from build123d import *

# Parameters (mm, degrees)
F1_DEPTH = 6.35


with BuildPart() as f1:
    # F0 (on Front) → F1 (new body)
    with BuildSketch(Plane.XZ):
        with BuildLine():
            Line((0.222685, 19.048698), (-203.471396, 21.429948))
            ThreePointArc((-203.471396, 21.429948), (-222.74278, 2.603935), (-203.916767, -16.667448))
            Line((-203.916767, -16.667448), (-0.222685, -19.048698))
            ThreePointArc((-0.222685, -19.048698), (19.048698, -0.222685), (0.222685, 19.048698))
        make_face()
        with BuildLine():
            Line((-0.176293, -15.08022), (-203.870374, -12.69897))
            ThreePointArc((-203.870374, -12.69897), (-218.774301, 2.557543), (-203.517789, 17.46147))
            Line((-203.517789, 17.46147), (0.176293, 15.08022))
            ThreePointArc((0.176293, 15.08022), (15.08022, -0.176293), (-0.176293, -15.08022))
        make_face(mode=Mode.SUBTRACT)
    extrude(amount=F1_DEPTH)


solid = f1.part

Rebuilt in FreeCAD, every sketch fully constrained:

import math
import FreeCAD as App
import Part
import Sketcher
from FreeCAD import Vector
Q = App.Units.Quantity

doc = App.newDocument("Part")
body = doc.addObject("PartDesign::Body", "Body")

sketch1 = body.newObject("Sketcher::SketchObject", "Sketch")
sketch1.AttachmentSupport = (doc.getObject("XZ_Plane"), [""])
sketch1.MapMode = "FlatFace"
sketch1.addGeometry([
    Part.LineSegment(Vector(0.222685, 19.048698, 0), Vector(-203.471396, 21.429948, 0)),
    Part.ArcOfCircle(Part.Circle(Vector(-203.694082, 2.38125, 0), Vector(0, 0, 1), 19.05), math.radians(89.330223), math.radians(269.330226)),
    Part.LineSegment(Vector(-203.916767, -16.667448, 0), Vector(-0.222685, -19.048698, 0)),
    Part.ArcOfCircle(Part.Circle(Vector(0, 0, 0), Vector(0, 0, 1), 19.05), math.radians(-90.669774), math.radians(89.330226)),
    Part.ArcOfCircle(Part.Circle(Vector(0, 0, 0), Vector(0, 0, 1), 15.08125), math.radians(-90.669777), math.radians(89.330223)),
    Part.LineSegment(Vector(-0.176293, -15.08022, 0), Vector(-203.870374, -12.69897, 0)),
    Part.ArcOfCircle(Part.Circle(Vector(-203.694081, 2.38125, 0), Vector(0, 0, 1), 15.08125), math.radians(89.330227), math.radians(269.330223)),
    Part.LineSegment(Vector(-203.517789, 17.46147, 0), Vector(0.176293, 15.08022, 0)),
], False)
sketch1.addConstraint([
    Sketcher.Constraint("Tangent", 0, 2, 1, 1),
    Sketcher.Constraint("Tangent", 1, 2, 2, 1),
    Sketcher.Constraint("Tangent", 2, 2, 3, 1),
    Sketcher.Constraint("Tangent", 3, 2, 0, 1),
    Sketcher.Constraint("Tangent", 4, 1, 5, 1),
    Sketcher.Constraint("Tangent", 5, 2, 6, 2),
    Sketcher.Constraint("Tangent", 6, 1, 7, 1),
    Sketcher.Constraint("Tangent", 7, 2, 4, 2),
    Sketcher.Constraint("Coincident", 3, 3, -1, 1),
    Sketcher.Constraint("Coincident", 4, 3, -1, 1),
    Sketcher.Constraint("Coincident", 6, 3, 1, 3),
    Sketcher.Constraint("Equal", 1, 3),
    Sketcher.Constraint("Equal", 4, 6),
    Sketcher.Constraint("Radius", 1, Q("0.75 in")),
    Sketcher.Constraint("Radius", 4, Q("0.59375 in")),
    Sketcher.Constraint("Distance", 0, Q("8.02 in")),
    Sketcher.Constraint("DistanceY", -1, 1, 1, 3, Q("0.09375 in")),
])
pad1 = body.newObject("PartDesign::Pad", "Pad")
pad1.Profile = sketch1
pad1.Length = Q("0.25 in")

doc.recompute()
